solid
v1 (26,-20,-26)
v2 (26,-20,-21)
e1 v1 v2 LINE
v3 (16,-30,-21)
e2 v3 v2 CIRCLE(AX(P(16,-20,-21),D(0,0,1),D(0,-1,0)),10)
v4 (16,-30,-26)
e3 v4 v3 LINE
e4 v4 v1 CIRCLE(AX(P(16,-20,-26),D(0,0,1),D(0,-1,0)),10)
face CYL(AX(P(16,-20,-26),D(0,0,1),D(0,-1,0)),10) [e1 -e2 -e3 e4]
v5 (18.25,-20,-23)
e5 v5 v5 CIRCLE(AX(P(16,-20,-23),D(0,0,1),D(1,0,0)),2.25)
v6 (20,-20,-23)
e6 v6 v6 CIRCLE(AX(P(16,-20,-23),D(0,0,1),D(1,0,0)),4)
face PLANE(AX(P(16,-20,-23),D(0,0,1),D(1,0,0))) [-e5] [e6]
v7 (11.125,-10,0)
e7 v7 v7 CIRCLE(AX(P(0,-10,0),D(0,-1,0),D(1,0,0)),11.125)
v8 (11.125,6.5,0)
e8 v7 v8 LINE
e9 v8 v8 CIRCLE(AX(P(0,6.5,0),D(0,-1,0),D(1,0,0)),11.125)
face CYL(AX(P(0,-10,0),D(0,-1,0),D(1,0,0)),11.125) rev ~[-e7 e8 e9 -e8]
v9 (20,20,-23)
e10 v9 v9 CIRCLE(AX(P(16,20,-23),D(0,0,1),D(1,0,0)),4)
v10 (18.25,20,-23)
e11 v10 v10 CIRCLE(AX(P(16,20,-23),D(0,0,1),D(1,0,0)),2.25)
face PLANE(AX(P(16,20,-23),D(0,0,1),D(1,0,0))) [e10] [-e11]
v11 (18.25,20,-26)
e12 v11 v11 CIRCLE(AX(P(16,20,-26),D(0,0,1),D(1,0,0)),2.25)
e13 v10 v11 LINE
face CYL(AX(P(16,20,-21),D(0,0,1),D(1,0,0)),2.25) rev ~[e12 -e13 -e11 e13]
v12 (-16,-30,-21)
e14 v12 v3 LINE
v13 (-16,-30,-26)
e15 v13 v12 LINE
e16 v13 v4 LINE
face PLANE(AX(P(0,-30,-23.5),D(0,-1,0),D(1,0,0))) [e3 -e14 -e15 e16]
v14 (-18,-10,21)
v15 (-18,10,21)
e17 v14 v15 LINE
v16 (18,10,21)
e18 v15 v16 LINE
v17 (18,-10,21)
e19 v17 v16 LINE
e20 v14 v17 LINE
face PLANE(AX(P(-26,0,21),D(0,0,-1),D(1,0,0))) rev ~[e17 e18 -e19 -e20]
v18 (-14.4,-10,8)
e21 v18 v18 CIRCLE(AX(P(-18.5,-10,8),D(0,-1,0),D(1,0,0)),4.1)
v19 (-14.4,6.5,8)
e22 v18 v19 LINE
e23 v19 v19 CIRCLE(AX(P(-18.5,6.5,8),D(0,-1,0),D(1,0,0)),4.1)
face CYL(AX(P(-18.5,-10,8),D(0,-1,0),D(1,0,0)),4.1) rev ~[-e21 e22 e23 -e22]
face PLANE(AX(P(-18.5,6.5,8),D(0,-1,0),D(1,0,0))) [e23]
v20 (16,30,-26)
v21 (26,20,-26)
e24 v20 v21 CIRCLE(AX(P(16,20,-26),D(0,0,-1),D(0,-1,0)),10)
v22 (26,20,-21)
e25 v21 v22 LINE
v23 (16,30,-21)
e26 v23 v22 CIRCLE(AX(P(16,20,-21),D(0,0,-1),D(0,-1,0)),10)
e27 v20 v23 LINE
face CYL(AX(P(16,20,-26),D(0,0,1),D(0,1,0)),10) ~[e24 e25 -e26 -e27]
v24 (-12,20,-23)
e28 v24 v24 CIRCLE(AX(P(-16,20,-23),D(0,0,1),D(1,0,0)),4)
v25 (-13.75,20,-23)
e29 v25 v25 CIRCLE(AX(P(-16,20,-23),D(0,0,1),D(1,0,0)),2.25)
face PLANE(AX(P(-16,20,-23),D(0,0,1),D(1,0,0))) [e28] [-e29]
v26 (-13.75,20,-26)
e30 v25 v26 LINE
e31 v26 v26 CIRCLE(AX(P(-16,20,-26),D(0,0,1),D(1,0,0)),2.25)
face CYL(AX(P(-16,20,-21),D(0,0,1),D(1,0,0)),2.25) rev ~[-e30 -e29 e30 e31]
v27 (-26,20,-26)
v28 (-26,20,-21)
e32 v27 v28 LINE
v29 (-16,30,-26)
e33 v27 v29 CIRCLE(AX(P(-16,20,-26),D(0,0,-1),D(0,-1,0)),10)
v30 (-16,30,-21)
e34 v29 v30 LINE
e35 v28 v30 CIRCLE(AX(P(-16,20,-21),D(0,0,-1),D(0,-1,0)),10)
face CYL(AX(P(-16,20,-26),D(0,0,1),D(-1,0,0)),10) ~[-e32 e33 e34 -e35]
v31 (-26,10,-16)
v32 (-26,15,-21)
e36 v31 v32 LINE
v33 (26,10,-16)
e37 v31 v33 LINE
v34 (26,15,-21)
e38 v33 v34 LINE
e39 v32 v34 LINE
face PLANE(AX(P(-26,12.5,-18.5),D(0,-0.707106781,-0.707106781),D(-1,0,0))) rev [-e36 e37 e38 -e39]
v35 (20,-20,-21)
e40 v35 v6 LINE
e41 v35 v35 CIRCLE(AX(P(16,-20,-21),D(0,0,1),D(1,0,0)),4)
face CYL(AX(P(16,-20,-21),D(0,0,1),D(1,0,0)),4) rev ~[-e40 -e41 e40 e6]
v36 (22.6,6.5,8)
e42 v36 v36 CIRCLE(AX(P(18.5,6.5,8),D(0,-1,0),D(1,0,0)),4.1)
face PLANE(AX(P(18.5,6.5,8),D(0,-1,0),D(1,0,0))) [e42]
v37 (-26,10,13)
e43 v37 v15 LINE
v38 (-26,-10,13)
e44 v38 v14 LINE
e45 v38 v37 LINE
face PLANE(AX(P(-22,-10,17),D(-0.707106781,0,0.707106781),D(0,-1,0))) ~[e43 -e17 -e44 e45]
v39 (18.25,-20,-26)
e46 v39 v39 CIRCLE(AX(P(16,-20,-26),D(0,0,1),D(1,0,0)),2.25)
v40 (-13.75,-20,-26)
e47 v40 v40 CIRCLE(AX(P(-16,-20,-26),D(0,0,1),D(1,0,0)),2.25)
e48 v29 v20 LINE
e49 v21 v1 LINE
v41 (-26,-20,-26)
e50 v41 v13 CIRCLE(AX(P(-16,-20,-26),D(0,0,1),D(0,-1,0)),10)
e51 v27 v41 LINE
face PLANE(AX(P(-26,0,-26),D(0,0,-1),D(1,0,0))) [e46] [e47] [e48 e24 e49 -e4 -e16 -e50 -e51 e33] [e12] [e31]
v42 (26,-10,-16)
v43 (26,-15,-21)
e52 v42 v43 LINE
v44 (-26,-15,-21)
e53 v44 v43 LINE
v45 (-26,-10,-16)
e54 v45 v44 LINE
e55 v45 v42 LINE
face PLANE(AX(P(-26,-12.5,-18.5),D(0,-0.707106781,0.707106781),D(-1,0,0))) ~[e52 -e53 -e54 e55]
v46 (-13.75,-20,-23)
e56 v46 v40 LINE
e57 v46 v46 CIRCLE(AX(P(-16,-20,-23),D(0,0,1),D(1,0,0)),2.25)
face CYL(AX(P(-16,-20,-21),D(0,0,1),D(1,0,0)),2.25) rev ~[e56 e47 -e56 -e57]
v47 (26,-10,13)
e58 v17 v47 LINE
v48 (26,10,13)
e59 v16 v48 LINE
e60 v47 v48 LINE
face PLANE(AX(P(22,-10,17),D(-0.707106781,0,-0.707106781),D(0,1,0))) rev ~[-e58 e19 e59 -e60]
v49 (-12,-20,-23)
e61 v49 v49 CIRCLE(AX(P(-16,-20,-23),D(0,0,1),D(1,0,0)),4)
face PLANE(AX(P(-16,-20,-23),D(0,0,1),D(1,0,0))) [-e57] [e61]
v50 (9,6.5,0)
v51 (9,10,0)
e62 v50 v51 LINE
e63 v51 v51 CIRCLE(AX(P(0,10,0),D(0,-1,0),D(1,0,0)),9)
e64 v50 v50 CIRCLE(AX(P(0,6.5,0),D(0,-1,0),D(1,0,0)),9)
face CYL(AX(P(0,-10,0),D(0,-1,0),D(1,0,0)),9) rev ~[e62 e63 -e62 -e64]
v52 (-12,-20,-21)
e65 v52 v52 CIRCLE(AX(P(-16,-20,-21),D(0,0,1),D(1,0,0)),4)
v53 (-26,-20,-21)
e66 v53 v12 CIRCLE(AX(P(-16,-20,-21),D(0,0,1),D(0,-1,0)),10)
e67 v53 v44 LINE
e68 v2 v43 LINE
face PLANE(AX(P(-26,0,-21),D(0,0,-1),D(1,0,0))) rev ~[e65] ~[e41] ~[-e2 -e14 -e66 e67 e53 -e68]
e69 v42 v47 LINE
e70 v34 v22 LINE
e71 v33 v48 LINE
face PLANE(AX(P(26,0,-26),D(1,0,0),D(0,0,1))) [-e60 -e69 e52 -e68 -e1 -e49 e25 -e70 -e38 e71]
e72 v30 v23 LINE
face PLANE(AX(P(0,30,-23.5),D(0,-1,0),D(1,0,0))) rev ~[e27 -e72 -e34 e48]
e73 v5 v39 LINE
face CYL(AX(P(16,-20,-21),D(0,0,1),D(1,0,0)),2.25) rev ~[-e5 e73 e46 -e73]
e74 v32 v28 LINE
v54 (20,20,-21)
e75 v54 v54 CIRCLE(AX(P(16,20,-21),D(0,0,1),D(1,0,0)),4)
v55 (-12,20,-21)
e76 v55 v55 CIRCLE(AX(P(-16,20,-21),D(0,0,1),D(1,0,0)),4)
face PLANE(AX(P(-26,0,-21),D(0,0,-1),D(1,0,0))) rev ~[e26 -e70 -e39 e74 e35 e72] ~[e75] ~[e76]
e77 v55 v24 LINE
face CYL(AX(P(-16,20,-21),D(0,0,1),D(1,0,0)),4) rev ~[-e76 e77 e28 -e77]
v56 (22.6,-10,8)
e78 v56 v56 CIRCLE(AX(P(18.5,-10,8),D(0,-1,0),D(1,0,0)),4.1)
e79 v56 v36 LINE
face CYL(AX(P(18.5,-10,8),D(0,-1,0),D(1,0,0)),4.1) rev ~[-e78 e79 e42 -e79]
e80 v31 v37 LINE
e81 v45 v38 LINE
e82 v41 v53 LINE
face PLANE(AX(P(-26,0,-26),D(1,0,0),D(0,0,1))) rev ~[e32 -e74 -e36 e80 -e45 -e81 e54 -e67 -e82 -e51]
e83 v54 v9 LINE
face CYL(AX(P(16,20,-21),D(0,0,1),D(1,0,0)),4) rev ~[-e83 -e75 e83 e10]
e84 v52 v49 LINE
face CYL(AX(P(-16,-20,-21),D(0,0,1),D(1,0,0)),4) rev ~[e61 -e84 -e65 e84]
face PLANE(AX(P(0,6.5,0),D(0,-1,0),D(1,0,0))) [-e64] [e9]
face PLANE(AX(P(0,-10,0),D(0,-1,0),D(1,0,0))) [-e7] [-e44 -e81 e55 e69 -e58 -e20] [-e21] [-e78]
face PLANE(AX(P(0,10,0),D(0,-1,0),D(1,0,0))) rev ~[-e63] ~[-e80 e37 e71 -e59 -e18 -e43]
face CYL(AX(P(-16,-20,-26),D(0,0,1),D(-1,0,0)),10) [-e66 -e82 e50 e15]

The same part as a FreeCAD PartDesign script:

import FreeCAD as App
import Part
import Sketcher
from FreeCAD import Vector
Q = App.Units.Quantity


def edges_at(feature, points):
    """Names of the edges that pass closest to the given points."""
    edges = feature.Shape.Edges
    near = lambda p: min(range(len(edges)), key=lambda i: edges[i].distToShape(Part.Vertex(*p))[0])
    return sorted({f"Edge{near(p) + 1}" for p in points})

doc = App.newDocument("Part")
body = doc.addObject("PartDesign::Body", "Body")

sketch1 = body.newObject("Sketcher::SketchObject", "Sketch")
sketch1.AttachmentSupport = (doc.getObject("XZ_Plane"), [""])
sketch1.MapMode = "FlatFace"
sketch1.addGeometry([
    Part.LineSegment(Vector(-26, 21, 0), Vector(-26, -21, 0)),
    Part.LineSegment(Vector(-26, -21, 0), Vector(26, -21, 0)),
    Part.LineSegment(Vector(26, -21, 0), Vector(26, 21, 0)),
    Part.LineSegment(Vector(26, 21, 0), Vector(-26, 21, 0)),
], False)
sketch1.addConstraint([
    Sketcher.Constraint("Coincident", 0, 2, 1, 1),
    Sketcher.Constraint("Coincident", 1, 2, 2, 1),
    Sketcher.Constraint("Coincident", 2, 2, 3, 1),
    Sketcher.Constraint("Coincident", 3, 2, 0, 1),
    Sketcher.Constraint("Vertical", 0),
    Sketcher.Constraint("Horizontal", 1),
    Sketcher.Constraint("Vertical", 2),
    Sketcher.Constraint("Horizontal", 3),
    Sketcher.Constraint("Symmetric", 0, 2, 2, 2, -1, 1),
    Sketcher.Constraint("DistanceX", 1, 1, 1, 2, Q("52 mm")),
    Sketcher.Constraint("DistanceY", 0, 2, 0, 1, Q("42 mm")),
])
pad1 = body.newObject("PartDesign::Pad", "Pad")
pad1.Profile = sketch1
pad1.Length = 20
pad1.Midplane = True

sketch2 = body.newObject("Sketcher::SketchObject", "Sketch001")
sketch2.AttachmentSupport = (doc.getObject("XZ_Plane"), [""])
sketch2.MapMode = "FlatFace"
sketch2.addGeometry([
    Part.LineSegment(Vector(-26, -21, 0), Vector(-26, -26, 0)),
    Part.LineSegment(Vector(-26, -26, 0), Vector(26, -26, 0)),
    Part.LineSegment(Vector(26, -26, 0), Vector(26, -21, 0)),
    Part.LineSegment(Vector(26, -21, 0), Vector(-26, -21, 0)),
], False)
sketch2.addConstraint([
    Sketcher.Constraint("Coincident", 0, 2, 1, 1),
    Sketcher.Constraint("Coincident", 1, 2, 2, 1),
    Sketcher.Constraint("Coincident", 2, 2, 3, 1),
    Sketcher.Constraint("Coincident", 3, 2, 0, 1),
    Sketcher.Constraint("Vertical", 0),
    Sketcher.Constraint("Horizontal", 1),
    Sketcher.Constraint("Vertical", 2),
    Sketcher.Constraint("Horizontal", 3),
    Sketcher.Constraint("DistanceX", 1, 1, 1, 2, Q("52 mm")),
    Sketcher.Constraint("DistanceY", 0, 2, 0, 1, Q("5 mm")),
    Sketcher.Constraint("DistanceX", 0, 2, -1, 1, Q("26 mm")),
    Sketcher.Constraint("DistanceY", 0, 2, -1, 1, Q("26 mm")),
])
pad2 = body.newObject("PartDesign::Pad", "Pad001")
pad2.Profile = sketch2
pad2.Length = 60
pad2.Midplane = True

sketch3 = body.newObject("Sketcher::SketchObject", "Sketch002")
sketch3.AttachmentSupport = (doc.getObject("XZ_Plane"), [""])
sketch3.MapMode = "FlatFace"
sketch3.AttachmentOffset = App.Placement(Vector(0, 0, 10), App.Rotation())
sketch3.addGeometry(Part.Circle(Vector(0, 0, 0), Vector(0, 0, 1), 9), False)
sketch3.addConstraint([
    Sketcher.Constraint("Coincident", 0, 3, -1, 1),
    Sketcher.Constraint("Diameter", 0, Q("18 mm")),
])
pocket1 = body.newObject("PartDesign::Pocket", "Pocket")
pocket1.Profile = sketch3
pocket1.Type = "ThroughAll"

sketch4 = body.newObject("Sketcher::SketchObject", "Sketch003")
sketch4.AttachmentSupport = (doc.getObject("XZ_Plane"), [""])
sketch4.MapMode = "FlatFace"
sketch4.AttachmentOffset = App.Placement(Vector(0, 0, 10), App.Rotation())
sketch4.addGeometry([
    Part.Circle(Vector(0, 0, 0), Vector(0, 0, 1), 11.125),
    Part.Circle(Vector(-18.5, 8, 0), Vector(0, 0, 1), 4.1),
    Part.Circle(Vector(18.5, 8, 0), Vector(0, 0, 1), 4.1),
], False)
sketch4.addConstraint([
    Sketcher.Constraint("Coincident", 0, 3, -1, 1),
    Sketcher.Constraint("Equal", 1, 2),
    Sketcher.Constraint("Symmetric", 1, 3, 2, 3, -2),
    Sketcher.Constraint("Diameter", 1, Q("8.2 mm")),
    Sketcher.Constraint("Diameter", 0, Q("22.25 mm")),
    Sketcher.Constraint("DistanceY", -1, 1, 1, 3, Q("8 mm")),
    Sketcher.Constraint("DistanceX", 1, 3, 2, 3, Q("37 mm")),
])
pocket2 = body.newObject("PartDesign::Pocket", "Pocket001")
pocket2.Profile = sketch4
pocket2.Length = 16.5

sketch5 = body.newObject("Sketcher::SketchObject", "Sketch004")
sketch5.AttachmentSupport = (doc.getObject("XY_Plane"), [""])
sketch5.MapMode = "FlatFace"
sketch5.AttachmentOffset = App.Placement(Vector(0, 0, -21), App.Rotation())
sketch5.addGeometry([
    Part.Circle(Vector(-16, 20, 0), Vector(0, 0, 1), 2.25),
    Part.Circle(Vector(16, 20, 0), Vector(0, 0, 1), 2.25),
    Part.Circle(Vector(16, -20, 0), Vector(0, 0, 1), 2.25),
    Part.Circle(Vector(-16, -20, 0), Vector(0, 0, 1), 2.25),
], False)
sketch5.addConstraint([
    Sketcher.Constraint("Equal", 0, 1),
    Sketcher.Constraint("Equal", 1, 2),
    Sketcher.Constraint("Equal", 2, 3),
    Sketcher.Constraint("Symmetric", 0, 3, 2, 3, -1, 1),
    Sketcher.Constraint("Symmetric", 1, 3, 3, 3, -1, 1),
    Sketcher.Constraint("Symmetric", 0, 3, 1, 3, -2),
    Sketcher.Constraint("Diameter", 0, Q("4.5 mm")),
    Sketcher.Constraint("DistanceX", 0, 3, -1, 1, Q("16 mm")),
    Sketcher.Constraint("DistanceY", -1, 1, 0, 3, Q("20 mm")),
])
pocket3 = body.newObject("PartDesign::Pocket", "Pocket002")
pocket3.Profile = sketch5
pocket3.Type = "ThroughAll"

sketch6 = body.newObject("Sketcher::SketchObject", "Sketch005")
sketch6.AttachmentSupport = (doc.getObject("XY_Plane"), [""])
sketch6.MapMode = "FlatFace"
sketch6.AttachmentOffset = App.Placement(Vector(0, 0, -21), App.Rotation())
sketch6.addGeometry([
    Part.Circle(Vector(-16, 20, 0), Vector(0, 0, 1), 4),
    Part.Circle(Vector(16, 20, 0), Vector(0, 0, 1), 4),
    Part.Circle(Vector(-16, -20, 0), Vector(0, 0, 1), 4),
    Part.Circle(Vector(16, -20, 0), Vector(0, 0, 1), 4),
], False)
sketch6.addConstraint([
    Sketcher.Constraint("Equal", 0, 1),
    Sketcher.Constraint("Equal", 1, 2),
    Sketcher.Constraint("Equal", 2, 3),
    Sketcher.Constraint("Symmetric", 1, 3, 2, 3, -1, 1),
    Sketcher.Constraint("Symmetric", 0, 3, 3, 3, -1, 1),
    Sketcher.Constraint("Symmetric", 0, 3, 1, 3, -2),
    Sketcher.Constraint("Diameter", 0, Q("8 mm")),
    Sketcher.Constraint("DistanceX", 0, 3, -1, 1, Q("16 mm")),
    Sketcher.Constraint("DistanceY", -1, 1, 0, 3, Q("20 mm")),
])
pocket4 = body.newObject("PartDesign::Pocket", "Pocket003")
pocket4.Profile = sketch6
pocket4.Length = 2
doc.recompute()

chamfer = body.newObject("PartDesign::Chamfer", "Chamfer")
chamfer.Base = (pocket4, edges_at(pocket4, [(-26, 0, 21), (26, 0, 21)]))
chamfer.Size = 8
doc.recompute()

chamfer2 = body.newObject("PartDesign::Chamfer", "Chamfer001")
chamfer2.Base = (chamfer, edges_at(chamfer, [(0, -10, -21), (0, 10, -21)]))
chamfer2.Size = 5
doc.recompute()

fillet = body.newObject("PartDesign::Fillet", "Fillet")
fillet.Base = (chamfer2, edges_at(chamfer2, [
    (26, 30, -23.5),
    (-26, 30, -23.5),
    (26, -30, -23.5),
    (-26, -30, -23.5),
]))
fillet.Radius = 10

doc.recompute()
